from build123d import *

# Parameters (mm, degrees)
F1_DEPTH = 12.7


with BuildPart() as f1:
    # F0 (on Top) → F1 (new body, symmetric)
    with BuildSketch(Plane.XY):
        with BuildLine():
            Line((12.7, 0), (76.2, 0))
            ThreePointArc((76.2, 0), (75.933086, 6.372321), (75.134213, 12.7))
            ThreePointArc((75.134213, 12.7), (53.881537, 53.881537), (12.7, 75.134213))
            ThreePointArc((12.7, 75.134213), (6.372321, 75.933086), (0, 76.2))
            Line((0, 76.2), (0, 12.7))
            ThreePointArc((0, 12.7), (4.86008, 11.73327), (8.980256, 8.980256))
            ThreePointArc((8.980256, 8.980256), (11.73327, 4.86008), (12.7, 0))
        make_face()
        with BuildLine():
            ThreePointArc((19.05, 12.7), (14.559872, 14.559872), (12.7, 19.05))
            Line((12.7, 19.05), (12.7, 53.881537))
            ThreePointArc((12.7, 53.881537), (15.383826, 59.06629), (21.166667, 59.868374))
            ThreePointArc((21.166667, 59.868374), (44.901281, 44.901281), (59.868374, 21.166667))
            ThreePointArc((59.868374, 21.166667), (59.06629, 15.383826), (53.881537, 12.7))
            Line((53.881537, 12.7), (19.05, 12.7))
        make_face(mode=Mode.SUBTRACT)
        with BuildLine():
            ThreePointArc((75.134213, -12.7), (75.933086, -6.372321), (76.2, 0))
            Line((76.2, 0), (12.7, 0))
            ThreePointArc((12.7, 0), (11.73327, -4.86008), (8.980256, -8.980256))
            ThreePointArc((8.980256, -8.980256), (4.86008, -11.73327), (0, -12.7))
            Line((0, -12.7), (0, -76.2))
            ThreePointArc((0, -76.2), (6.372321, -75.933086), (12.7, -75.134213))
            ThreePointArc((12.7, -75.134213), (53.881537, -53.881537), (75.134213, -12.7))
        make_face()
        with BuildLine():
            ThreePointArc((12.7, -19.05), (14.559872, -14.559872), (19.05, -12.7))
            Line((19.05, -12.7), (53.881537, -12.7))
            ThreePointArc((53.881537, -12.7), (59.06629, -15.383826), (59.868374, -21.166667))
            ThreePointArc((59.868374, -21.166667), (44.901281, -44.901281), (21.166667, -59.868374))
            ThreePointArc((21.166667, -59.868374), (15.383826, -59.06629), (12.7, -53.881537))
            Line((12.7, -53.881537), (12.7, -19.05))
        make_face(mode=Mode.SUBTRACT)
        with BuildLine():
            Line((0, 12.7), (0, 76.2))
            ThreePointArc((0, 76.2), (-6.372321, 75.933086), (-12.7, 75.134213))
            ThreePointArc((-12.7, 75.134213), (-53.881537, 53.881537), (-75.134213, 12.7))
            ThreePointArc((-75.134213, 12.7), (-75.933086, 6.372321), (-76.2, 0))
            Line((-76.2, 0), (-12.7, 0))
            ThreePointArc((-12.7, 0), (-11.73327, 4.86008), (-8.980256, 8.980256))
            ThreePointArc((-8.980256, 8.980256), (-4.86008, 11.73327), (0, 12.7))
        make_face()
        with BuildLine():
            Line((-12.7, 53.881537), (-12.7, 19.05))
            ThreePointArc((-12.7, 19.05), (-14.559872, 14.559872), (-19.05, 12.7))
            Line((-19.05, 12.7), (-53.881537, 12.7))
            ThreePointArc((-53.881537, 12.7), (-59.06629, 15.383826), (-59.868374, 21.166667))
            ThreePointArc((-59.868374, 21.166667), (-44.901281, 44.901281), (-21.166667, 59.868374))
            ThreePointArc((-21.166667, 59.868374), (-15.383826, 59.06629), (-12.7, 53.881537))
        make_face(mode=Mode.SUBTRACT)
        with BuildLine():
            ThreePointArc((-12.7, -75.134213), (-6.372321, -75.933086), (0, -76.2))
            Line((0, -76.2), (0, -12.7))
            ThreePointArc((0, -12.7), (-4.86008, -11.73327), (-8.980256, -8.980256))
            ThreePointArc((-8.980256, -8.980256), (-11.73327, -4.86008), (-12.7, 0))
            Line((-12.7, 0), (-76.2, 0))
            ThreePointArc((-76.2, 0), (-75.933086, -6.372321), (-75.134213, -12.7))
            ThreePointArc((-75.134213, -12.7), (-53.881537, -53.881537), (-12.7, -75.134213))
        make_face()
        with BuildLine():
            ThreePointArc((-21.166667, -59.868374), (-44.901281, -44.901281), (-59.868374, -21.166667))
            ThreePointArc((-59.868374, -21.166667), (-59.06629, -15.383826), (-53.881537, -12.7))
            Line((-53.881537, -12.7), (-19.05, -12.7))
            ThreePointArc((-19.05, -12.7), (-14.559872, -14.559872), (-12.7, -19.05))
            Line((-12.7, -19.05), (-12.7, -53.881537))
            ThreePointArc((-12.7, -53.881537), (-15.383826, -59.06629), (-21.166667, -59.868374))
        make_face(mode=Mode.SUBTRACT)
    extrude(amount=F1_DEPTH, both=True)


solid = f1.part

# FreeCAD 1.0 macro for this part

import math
import FreeCAD as App
import Part
import Sketcher
from FreeCAD import Vector
Q = App.Units.Quantity

doc = App.newDocument("Part")
body = doc.addObject("PartDesign::Body", "Body")

sketch1 = body.newObject("Sketcher::SketchObject", "Sketch")
sketch1.AttachmentSupport = (doc.getObject("XY_Plane"), [""])
sketch1.MapMode = "FlatFace"
sketch1.addGeometry([
    Part.ArcOfCircle(Part.Circle(Vector(0.000005, -0.00008, 0), Vector(0, 0, 1), 76.19992), math.radians(-90.000004), math.radians(-80.405926)),
    Part.ArcOfCircle(Part.Circle(Vector(0.000002, -0.000002, 0), Vector(0, 0, 1), 76.199997), math.radians(-80.405933), math.radians(-9.594067)),
    Part.ArcOfCircle(Part.Circle(Vector(0.00008, -0.000005, 0), Vector(0, 0, 1), 76.19992), math.radians(-9.594074), math.radians(0.000004)),
    Part.ArcOfCircle(Part.Circle(Vector(0.00008, 0.000005, 0), Vector(0, 0, 1), 76.19992), math.radians(-0.000004), math.radians(9.594074)),
    Part.ArcOfCircle(Part.Circle(Vector(0.000002, 0.000002, 0), Vector(0, 0, 1), 76.199997), math.radians(9.594067), math.radians(80.405933)),
    Part.ArcOfCircle(Part.Circle(Vector(0.000005, 0.00008, 0), Vector(0, 0, 1), 76.19992), math.radians(80.405926), math.radians(90.000004)),
    Part.ArcOfCircle(Part.Circle(Vector(-0.000005, 0.00008, 0), Vector(0, 0, 1), 76.19992), math.radians(89.999996), math.radians(99.594074)),
    Part.ArcOfCircle(Part.Circle(Vector(-0.000002, 0.000002, 0), Vector(0, 0, 1), 76.199997), math.radians(99.594067), math.radians(170.405933)),
    Part.ArcOfCircle(Part.Circle(Vector(-0.00008, 0.000005, 0), Vector(0, 0, 1), 76.19992), math.radians(170.405926), math.radians(180.000004)),
    Part.ArcOfCircle(Part.Circle(Vector(-0.00008, -0.000005, 0), Vector(0, 0, 1), 76.19992), math.radians(179.999996), math.radians(189.594074)),
    Part.ArcOfCircle(Part.Circle(Vector(-0.000002, -0.000002, 0), Vector(0, 0, 1), 76.199997), math.radians(-170.405933), math.radians(-99.594067)),
    Part.ArcOfCircle(Part.Circle(Vector(-0.000005, -0.00008, 0), Vector(0, 0, 1), 76.19992), math.radians(-99.594074), math.radians(-89.999996)),
    Part.ArcOfCircle(Part.Circle(Vector(-19.05, -53.881536, 0), Vector(0, 0, 1), 6.35), math.radians(-109.471222), math.radians(-0.000005)),
    Part.ArcOfCircle(Part.Circle(Vector(-0.000004, -0.000004, 0), Vector(0, 0, 1), 63.499995), math.radians(-160.528781), math.radians(-109.471219)),
    Part.ArcOfCircle(Part.Circle(Vector(-53.881536, -19.05, 0), Vector(0, 0, 1), 6.35), math.radians(90.000005), math.radians(199.471222)),
    Part.LineSegment(Vector(-53.881537, -12.7, 0), Vector(-19.05, -12.7, 0)),
    Part.ArcOfCircle(Part.Circle(Vector(-19.05, -19.05, 0), Vector(0, 0, 1), 6.35), math.radians(0.000002), math.radians(89.999998)),
    Part.LineSegment(Vector(-12.7, -19.05, 0), Vector(-12.7, -53.881537, 0)),
    Part.LineSegment(Vector(12.7, -53.881537, 0), Vector(12.7, -19.05, 0)),
    Part.ArcOfCircle(Part.Circle(Vector(19.05, -19.05, 0), Vector(0, 0, 1), 6.35), math.radians(90.000002), math.radians(179.999998)),
    Part.LineSegment(Vector(19.05, -12.7, 0), Vector(53.881537, -12.7, 0)),
    Part.ArcOfCircle(Part.Circle(Vector(53.881536, -19.05, 0), Vector(0, 0, 1), 6.35), math.radians(-19.471222), math.radians(89.999995)),
    Part.ArcOfCircle(Part.Circle(Vector(0.000004, -0.000004, 0), Vector(0, 0, 1), 63.499995), math.radians(-70.528781), math.radians(-19.471219)),
    Part.ArcOfCircle(Part.Circle(Vector(19.05, -53.881536, 0), Vector(0, 0, 1), 6.35), math.radians(-179.999995), math.radians(-70.528778)),
    Part.ArcOfCircle(Part.Circle(Vector(-19.05, 53.881536, 0), Vector(0, 0, 1), 6.35), math.radians(0.000005), math.radians(109.471222)),
    Part.LineSegment(Vector(-12.7, 53.881537, 0), Vector(-12.7, 19.05, 0)),
    Part.ArcOfCircle(Part.Circle(Vector(-19.05, 19.05, 0), Vector(0, 0, 1), 6.35), math.radians(-89.999998), math.radians(-0.000002)),
    Part.LineSegment(Vector(-19.05, 12.7, 0), Vector(-53.881537, 12.7, 0)),
    Part.ArcOfCircle(Part.Circle(Vector(-53.881536, 19.05, 0), Vector(0, 0, 1), 6.35), math.radians(160.528778), math.radians(269.999995)),
    Part.ArcOfCircle(Part.Circle(Vector(-0.000004, 0.000004, 0), Vector(0, 0, 1), 63.499995), math.radians(109.471219), math.radians(160.528781)),
    Part.ArcOfCircle(Part.Circle(Vector(0.000002, 0.000001, 0), Vector(0, 0, 1), 12.699998), math.radians(-0.000003), math.radians(45.000005)),
    Part.ArcOfCircle(Part.Circle(Vector(0.000002, -0.000001, 0), Vector(0, 0, 1), 12.699998), math.radians(-45.000005), math.radians(0.000003)),
    Part.ArcOfCircle(Part.Circle(Vector(0.000001, -0.000002, 0), Vector(0, 0, 1), 12.699998), math.radians(-90.000003), math.radians(-44.999995)),
    Part.ArcOfCircle(Part.Circle(Vector(-0.000001, -0.000002, 0), Vector(0, 0, 1), 12.699998), math.radians(-135.000005), math.radians(-89.999997)),
    Part.ArcOfCircle(Part.Circle(Vector(-0.000002, -0.000001, 0), Vector(0, 0, 1), 12.699998), math.radians(179.999997), math.radians(225.000005)),
    Part.ArcOfCircle(Part.Circle(Vector(-0.000002, 0.000001, 0), Vector(0, 0, 1), 12.699998), math.radians(134.999995), math.radians(180.000003)),
    Part.ArcOfCircle(Part.Circle(Vector(-0.000001, 0.000002, 0), Vector(0, 0, 1), 12.699998), math.radians(89.999997), math.radians(135.000005)),
    Part.ArcOfCircle(Part.Circle(Vector(0.000001, 0.000002, 0), Vector(0, 0, 1), 12.699998), math.radians(44.999995), math.radians(90.000003)),
    Part.LineSegment(Vector(53.881537, 12.7, 0), Vector(19.05, 12.7, 0)),
    Part.ArcOfCircle(Part.Circle(Vector(19.05, 19.05, 0), Vector(0, 0, 1), 6.35), math.radians(-179.999998), math.radians(-90.000002)),
    Part.LineSegment(Vector(12.7, 19.05, 0), Vector(12.7, 53.881537, 0)),
    Part.ArcOfCircle(Part.Circle(Vector(19.05, 53.881536, 0), Vector(0, 0, 1), 6.35), math.radians(70.528778), math.radians(179.999995)),
    Part.ArcOfCircle(Part.Circle(Vector(0.000004, 0.000004, 0), Vector(0, 0, 1), 63.499995), math.radians(19.471219), math.radians(70.528781)),
    Part.ArcOfCircle(Part.Circle(Vector(53.881536, 19.05, 0), Vector(0, 0, 1), 6.35), math.radians(-89.999995), math.radians(19.471222)),
], False)
sketch1.addConstraint([
    Sketcher.Constraint("Coincident", 0, 2, 1, 1),
    Sketcher.Constraint("Coincident", 1, 2, 2, 1),
    Sketcher.Constraint("Coincident", 2, 2, 3, 1),
    Sketcher.Constraint("Coincident", 3, 2, 4, 1),
    Sketcher.Constraint("Coincident", 4, 2, 5, 1),
    Sketcher.Constraint("Coincident", 5, 2, 6, 1),
    Sketcher.Constraint("Coincident", 6, 2, 7, 1),
    Sketcher.Constraint("Coincident", 7, 2, 8, 1),
    Sketcher.Constraint("Coincident", 8, 2, 9, 1),
    Sketcher.Constraint("Coincident", 9, 2, 10, 1),
    Sketcher.Constraint("Coincident", 10, 2, 11, 1),
    Sketcher.Constraint("Coincident", 11, 2, 0, 1),
    Sketcher.Constraint("Coincident", 12, 1, 13, 2),
    Sketcher.Constraint("Coincident", 13, 1, 14, 2),
    Sketcher.Constraint("Coincident", 14, 1, 15, 1),
    Sketcher.Constraint("Coincident", 15, 2, 16, 2),
    Sketcher.Constraint("Coincident", 16, 1, 17, 1),
    Sketcher.Constraint("Coincident", 17, 2, 12, 2),
    Sketcher.Constraint("Coincident", 18, 2, 19, 2),
    Sketcher.Constraint("Coincident", 19, 1, 20, 1),
    Sketcher.Constraint("Coincident", 20, 2, 21, 2),
    Sketcher.Constraint("Coincident", 21, 1, 22, 2),
    Sketcher.Constraint("Coincident", 22, 1, 23, 2),
    Sketcher.Constraint("Coincident", 23, 1, 18, 1),
    Sketcher.Constraint("Coincident", 24, 1, 25, 1),
    Sketcher.Constraint("Coincident", 25, 2, 26, 2),
    Sketcher.Constraint("Coincident", 26, 1, 27, 1),
    Sketcher.Constraint("Coincident", 27, 2, 28, 2),
    Sketcher.Constraint("Coincident", 28, 1, 29, 2),
    Sketcher.Constraint("Coincident", 29, 1, 24, 2),
    Sketcher.Constraint("Coincident", 30, 1, 31, 2),
    Sketcher.Constraint("Coincident", 31, 1, 32, 2),
    Sketcher.Constraint("Coincident", 32, 1, 33, 2),
    Sketcher.Constraint("Coincident", 33, 1, 34, 2),
    Sketcher.Constraint("Coincident", 34, 1, 35, 2),
    Sketcher.Constraint("Coincident", 35, 1, 36, 2),
    Sketcher.Constraint("Coincident", 36, 1, 37, 2),
    Sketcher.Constraint("Coincident", 37, 1, 30, 2),
    Sketcher.Constraint("Coincident", 38, 2, 39, 2),
    Sketcher.Constraint("Coincident", 39, 1, 40, 1),
    Sketcher.Constraint("Coincident", 40, 2, 41, 2),
    Sketcher.Constraint("Coincident", 41, 1, 42, 2),
    Sketcher.Constraint("Coincident", 42, 1, 43, 2),
    Sketcher.Constraint("Coincident", 43, 1, 38, 1),
    Sketcher.Constraint("Horizontal", 15),
    Sketcher.Constraint("Vertical", 17),
    Sketcher.Constraint("Vertical", 18),
    Sketcher.Constraint("Horizontal", 20),
    Sketcher.Constraint("Vertical", 25),
    Sketcher.Constraint("Horizontal", 27),
    Sketcher.Constraint("Horizontal", 38),
    Sketcher.Constraint("Vertical", 40),
    Sketcher.Constraint("Coincident", 1, 3, -1, 1),
    Sketcher.Constraint("Coincident", 4, 3, -1, 1),
    Sketcher.Constraint("Coincident", 7, 3, -1, 1),
    Sketcher.Constraint("Coincident", 10, 3, -1, 1),
    Sketcher.Constraint("Coincident", 13, 3, -1, 1),
    Sketcher.Constraint("Coincident", 22, 3, -1, 1),
    Sketcher.Constraint("Coincident", 29, 3, -1, 1),
    Sketcher.Constraint("Coincident", 30, 3, -1, 1),
    Sketcher.Constraint("Coincident", 31, 3, -1, 1),
    Sketcher.Constraint("Coincident", 32, 3, -1, 1),
    Sketcher.Constraint("Coincident", 33, 3, -1, 1),
    Sketcher.Constraint("Coincident", 34, 3, -1, 1),
    Sketcher.Constraint("Coincident", 35, 3, -1, 1),
    Sketcher.Constraint("Coincident", 36, 3, -1, 1),
    Sketcher.Constraint("Coincident", 42, 3, -1, 1),
    Sketcher.Constraint("PointOnObject", 37, 3, -2),
    Sketcher.Constraint("PointOnObject", 2, 2, -1),
    Sketcher.Constraint("PointOnObject", 5, 2, -2),
    Sketcher.Constraint("PointOnObject", 8, 2, -1),
    Sketcher.Constraint("PointOnObject", 11, 2, -2),
    Sketcher.Constraint("PointOnObject", 30, 1, -1),
    Sketcher.Constraint("PointOnObject", 32, 1, -2),
    Sketcher.Constraint("PointOnObject", 34, 1, -1),
    Sketcher.Constraint("PointOnObject", 36, 1, -2),
    Sketcher.Constraint("Radius", 1, Q("2.9999999 in")),
    Sketcher.Constraint("Radius", 4, Q("2.9999999 in")),
    Sketcher.Constraint("Radius", 7, Q("2.9999999 in")),
    Sketcher.Constraint("Radius", 10, Q("2.9999999 in")),
    Sketcher.Constraint("Radius", 30, Q("0.4999999 in")),
    Sketcher.Constraint("Radius", 12, Q("0.25 in")),
    Sketcher.Constraint("Radius", 14, Q("0.25 in")),
    Sketcher.Constraint("Radius", 16, Q("0.25 in")),
    Sketcher.Constraint("Radius", 19, Q("0.25 in")),
    Sketcher.Constraint("Radius", 21, Q("0.25 in")),
    Sketcher.Constraint("Radius", 23, Q("0.25 in")),
    Sketcher.Constraint("Radius", 24, Q("0.25 in")),
    Sketcher.Constraint("Radius", 26, Q("0.25 in")),
    Sketcher.Constraint("Radius", 28, Q("0.25 in")),
    Sketcher.Constraint("Radius", 39, Q("0.25 in")),
    Sketcher.Constraint("Radius", 41, Q("0.25 in")),
    Sketcher.Constraint("Radius", 43, Q("0.25 in")),
    Sketcher.Constraint("DistanceX", -1, 1, 2, 2, Q("3 in")),
    Sketcher.Constraint("DistanceY", -1, 1, 5, 2, Q("3 in")),
    Sketcher.Constraint("DistanceX", 8, 2, -1, 1, Q("3 in")),
    Sketcher.Constraint("DistanceY", 11, 2, -1, 1, Q("3 in")),
    Sketcher.Constraint("DistanceX", -1, 1, 0, 2, Q("0.5 in")),
    Sketcher.Constraint("DistanceY", 1, 2, -1, 1, Q("0.5 in")),
    Sketcher.Constraint("DistanceY", -1, 1, 3, 2, Q("0.5 in")),
    Sketcher.Constraint("DistanceX", -1, 1, 4, 2, Q("0.5 in")),
    Sketcher.Constraint("DistanceX", 6, 2, -1, 1, Q("0.5 in")),
    Sketcher.Constraint("DistanceY", -1, 1, 7, 2, Q("0.5 in")),
    Sketcher.Constraint("DistanceY", 9, 2, -1, 1, Q("0.5 in")),
    Sketcher.Constraint("DistanceX", 10, 2, -1, 1, Q("0.5 in")),
    Sketcher.Constraint("DistanceY", 14, 1, -1, 1, Q("0.5 in")),
    Sketcher.Constraint("DistanceX", 16, 1, -1, 1, Q("0.5 in")),
    Sketcher.Constraint("DistanceX", -1, 1, 18, 2, Q("0.5 in")),
    Sketcher.Constraint("DistanceY", 19, 1, -1, 1, Q("0.5 in")),
    Sketcher.Constraint("DistanceX", 24, 1, -1, 1, Q("0.5 in")),
    Sketcher.Constraint("DistanceY", -1, 1, 26, 1, Q("0.5 in")),
    Sketcher.Constraint("DistanceY", -1, 1, 38, 2, Q("0.5 in")),
    Sketcher.Constraint("DistanceX", -1, 1, 39, 1, Q("0.5 in")),
    Sketcher.Constraint("DistanceX", 15, 2, -1, 1, Q("0.75 in")),
    Sketcher.Constraint("DistanceY", 16, 1, -1, 1, Q("0.75 in")),
    Sketcher.Constraint("DistanceY", 18, 2, -1, 1, Q("0.75 in")),
    Sketcher.Constraint("DistanceX", -1, 1, 19, 1, Q("0.75 in")),
    Sketcher.Constraint("DistanceY", -1, 1, 25, 2, Q("0.75 in")),
    Sketcher.Constraint("DistanceX", 26, 1, -1, 1, Q("0.75 in")),
    Sketcher.Constraint("DistanceX", -1, 1, 38, 2, Q("0.75 in")),
    Sketcher.Constraint("DistanceY", -1, 1, 39, 1, Q("0.75 in")),
    Sketcher.Constraint("Radius", 0, Q("76.19992 mm")),
    Sketcher.Constraint("Radius", 2, Q("76.19992 mm")),
    Sketcher.Constraint("Radius", 3, Q("76.19992 mm")),
    Sketcher.Constraint("Radius", 5, Q("76.19992 mm")),
    Sketcher.Constraint("Radius", 6, Q("76.19992 mm")),
    Sketcher.Constraint("Radius", 8, Q("76.19992 mm")),
    Sketcher.Constraint("Radius", 9, Q("76.19992 mm")),
    Sketcher.Constraint("Radius", 11, Q("76.19992 mm")),
    Sketcher.Constraint("Radius", 13, Q("63.499995 mm")),
    Sketcher.Constraint("Radius", 22, Q("63.499995 mm")),
    Sketcher.Constraint("Radius", 29, Q("63.499995 mm")),
    Sketcher.Constraint("Radius", 42, Q("63.499995 mm")),
    Sketcher.Constraint("DistanceX", 15, 1, 15, 2, Q("34.831537 mm")),
    Sketcher.Constraint("DistanceX", 20, 1, 20, 2, Q("34.831537 mm")),
    Sketcher.Constraint("DistanceX", 27, 2, 27, 1, Q("34.831537 mm")),
    Sketcher.Constraint("DistanceX", 38, 2, 38, 1, Q("34.831537 mm")),
    Sketcher.Constraint("DistanceY", 17, 2, 17, 1, Q("34.831537 mm")),
    Sketcher.Constraint("DistanceY", 18, 1, 18, 2, Q("34.831537 mm")),
    Sketcher.Constraint("DistanceY", 25, 2, 25, 1, Q("34.831537 mm")),
    Sketcher.Constraint("DistanceY", 40, 1, 40, 2, Q("34.831537 mm")),
    Sketcher.Constraint("DistanceX", 12, 1, -1, 1, Q("21.166667 mm")),
    Sketcher.Constraint("DistanceX", 13, 1, -1, 1, Q("59.868374 mm")),
    Sketcher.Constraint("DistanceX", -1, 1, 21, 1, Q("59.868374 mm")),
    Sketcher.Constraint("DistanceX", -1, 1, 22, 1, Q("21.166667 mm")),
    Sketcher.Constraint("DistanceX", 28, 1, -1, 1, Q("59.868374 mm")),
    Sketcher.Constraint("DistanceX", 29, 1, -1, 1, Q("21.166667 mm")),
    Sketcher.Constraint("DistanceX", -1, 1, 31, 1, Q("8.980256 mm")),
    Sketcher.Constraint("DistanceX", 33, 1, -1, 1, Q("8.980256 mm")),
    Sketcher.Constraint("DistanceX", 35, 1, -1, 1, Q("8.980256 mm")),
    Sketcher.Constraint("DistanceX", -1, 1, 37, 1, Q("8.980256 mm")),
    Sketcher.Constraint("DistanceX", -1, 1, 41, 1, Q("21.166667 mm")),
    Sketcher.Constraint("DistanceX", -1, 1, 42, 1, Q("59.868374 mm")),
])
pad1 = body.newObject("PartDesign::Pad", "Pad")
pad1.Profile = sketch1
pad1.Length = Q("1 in")
pad1.Midplane = True

doc.recompute()
